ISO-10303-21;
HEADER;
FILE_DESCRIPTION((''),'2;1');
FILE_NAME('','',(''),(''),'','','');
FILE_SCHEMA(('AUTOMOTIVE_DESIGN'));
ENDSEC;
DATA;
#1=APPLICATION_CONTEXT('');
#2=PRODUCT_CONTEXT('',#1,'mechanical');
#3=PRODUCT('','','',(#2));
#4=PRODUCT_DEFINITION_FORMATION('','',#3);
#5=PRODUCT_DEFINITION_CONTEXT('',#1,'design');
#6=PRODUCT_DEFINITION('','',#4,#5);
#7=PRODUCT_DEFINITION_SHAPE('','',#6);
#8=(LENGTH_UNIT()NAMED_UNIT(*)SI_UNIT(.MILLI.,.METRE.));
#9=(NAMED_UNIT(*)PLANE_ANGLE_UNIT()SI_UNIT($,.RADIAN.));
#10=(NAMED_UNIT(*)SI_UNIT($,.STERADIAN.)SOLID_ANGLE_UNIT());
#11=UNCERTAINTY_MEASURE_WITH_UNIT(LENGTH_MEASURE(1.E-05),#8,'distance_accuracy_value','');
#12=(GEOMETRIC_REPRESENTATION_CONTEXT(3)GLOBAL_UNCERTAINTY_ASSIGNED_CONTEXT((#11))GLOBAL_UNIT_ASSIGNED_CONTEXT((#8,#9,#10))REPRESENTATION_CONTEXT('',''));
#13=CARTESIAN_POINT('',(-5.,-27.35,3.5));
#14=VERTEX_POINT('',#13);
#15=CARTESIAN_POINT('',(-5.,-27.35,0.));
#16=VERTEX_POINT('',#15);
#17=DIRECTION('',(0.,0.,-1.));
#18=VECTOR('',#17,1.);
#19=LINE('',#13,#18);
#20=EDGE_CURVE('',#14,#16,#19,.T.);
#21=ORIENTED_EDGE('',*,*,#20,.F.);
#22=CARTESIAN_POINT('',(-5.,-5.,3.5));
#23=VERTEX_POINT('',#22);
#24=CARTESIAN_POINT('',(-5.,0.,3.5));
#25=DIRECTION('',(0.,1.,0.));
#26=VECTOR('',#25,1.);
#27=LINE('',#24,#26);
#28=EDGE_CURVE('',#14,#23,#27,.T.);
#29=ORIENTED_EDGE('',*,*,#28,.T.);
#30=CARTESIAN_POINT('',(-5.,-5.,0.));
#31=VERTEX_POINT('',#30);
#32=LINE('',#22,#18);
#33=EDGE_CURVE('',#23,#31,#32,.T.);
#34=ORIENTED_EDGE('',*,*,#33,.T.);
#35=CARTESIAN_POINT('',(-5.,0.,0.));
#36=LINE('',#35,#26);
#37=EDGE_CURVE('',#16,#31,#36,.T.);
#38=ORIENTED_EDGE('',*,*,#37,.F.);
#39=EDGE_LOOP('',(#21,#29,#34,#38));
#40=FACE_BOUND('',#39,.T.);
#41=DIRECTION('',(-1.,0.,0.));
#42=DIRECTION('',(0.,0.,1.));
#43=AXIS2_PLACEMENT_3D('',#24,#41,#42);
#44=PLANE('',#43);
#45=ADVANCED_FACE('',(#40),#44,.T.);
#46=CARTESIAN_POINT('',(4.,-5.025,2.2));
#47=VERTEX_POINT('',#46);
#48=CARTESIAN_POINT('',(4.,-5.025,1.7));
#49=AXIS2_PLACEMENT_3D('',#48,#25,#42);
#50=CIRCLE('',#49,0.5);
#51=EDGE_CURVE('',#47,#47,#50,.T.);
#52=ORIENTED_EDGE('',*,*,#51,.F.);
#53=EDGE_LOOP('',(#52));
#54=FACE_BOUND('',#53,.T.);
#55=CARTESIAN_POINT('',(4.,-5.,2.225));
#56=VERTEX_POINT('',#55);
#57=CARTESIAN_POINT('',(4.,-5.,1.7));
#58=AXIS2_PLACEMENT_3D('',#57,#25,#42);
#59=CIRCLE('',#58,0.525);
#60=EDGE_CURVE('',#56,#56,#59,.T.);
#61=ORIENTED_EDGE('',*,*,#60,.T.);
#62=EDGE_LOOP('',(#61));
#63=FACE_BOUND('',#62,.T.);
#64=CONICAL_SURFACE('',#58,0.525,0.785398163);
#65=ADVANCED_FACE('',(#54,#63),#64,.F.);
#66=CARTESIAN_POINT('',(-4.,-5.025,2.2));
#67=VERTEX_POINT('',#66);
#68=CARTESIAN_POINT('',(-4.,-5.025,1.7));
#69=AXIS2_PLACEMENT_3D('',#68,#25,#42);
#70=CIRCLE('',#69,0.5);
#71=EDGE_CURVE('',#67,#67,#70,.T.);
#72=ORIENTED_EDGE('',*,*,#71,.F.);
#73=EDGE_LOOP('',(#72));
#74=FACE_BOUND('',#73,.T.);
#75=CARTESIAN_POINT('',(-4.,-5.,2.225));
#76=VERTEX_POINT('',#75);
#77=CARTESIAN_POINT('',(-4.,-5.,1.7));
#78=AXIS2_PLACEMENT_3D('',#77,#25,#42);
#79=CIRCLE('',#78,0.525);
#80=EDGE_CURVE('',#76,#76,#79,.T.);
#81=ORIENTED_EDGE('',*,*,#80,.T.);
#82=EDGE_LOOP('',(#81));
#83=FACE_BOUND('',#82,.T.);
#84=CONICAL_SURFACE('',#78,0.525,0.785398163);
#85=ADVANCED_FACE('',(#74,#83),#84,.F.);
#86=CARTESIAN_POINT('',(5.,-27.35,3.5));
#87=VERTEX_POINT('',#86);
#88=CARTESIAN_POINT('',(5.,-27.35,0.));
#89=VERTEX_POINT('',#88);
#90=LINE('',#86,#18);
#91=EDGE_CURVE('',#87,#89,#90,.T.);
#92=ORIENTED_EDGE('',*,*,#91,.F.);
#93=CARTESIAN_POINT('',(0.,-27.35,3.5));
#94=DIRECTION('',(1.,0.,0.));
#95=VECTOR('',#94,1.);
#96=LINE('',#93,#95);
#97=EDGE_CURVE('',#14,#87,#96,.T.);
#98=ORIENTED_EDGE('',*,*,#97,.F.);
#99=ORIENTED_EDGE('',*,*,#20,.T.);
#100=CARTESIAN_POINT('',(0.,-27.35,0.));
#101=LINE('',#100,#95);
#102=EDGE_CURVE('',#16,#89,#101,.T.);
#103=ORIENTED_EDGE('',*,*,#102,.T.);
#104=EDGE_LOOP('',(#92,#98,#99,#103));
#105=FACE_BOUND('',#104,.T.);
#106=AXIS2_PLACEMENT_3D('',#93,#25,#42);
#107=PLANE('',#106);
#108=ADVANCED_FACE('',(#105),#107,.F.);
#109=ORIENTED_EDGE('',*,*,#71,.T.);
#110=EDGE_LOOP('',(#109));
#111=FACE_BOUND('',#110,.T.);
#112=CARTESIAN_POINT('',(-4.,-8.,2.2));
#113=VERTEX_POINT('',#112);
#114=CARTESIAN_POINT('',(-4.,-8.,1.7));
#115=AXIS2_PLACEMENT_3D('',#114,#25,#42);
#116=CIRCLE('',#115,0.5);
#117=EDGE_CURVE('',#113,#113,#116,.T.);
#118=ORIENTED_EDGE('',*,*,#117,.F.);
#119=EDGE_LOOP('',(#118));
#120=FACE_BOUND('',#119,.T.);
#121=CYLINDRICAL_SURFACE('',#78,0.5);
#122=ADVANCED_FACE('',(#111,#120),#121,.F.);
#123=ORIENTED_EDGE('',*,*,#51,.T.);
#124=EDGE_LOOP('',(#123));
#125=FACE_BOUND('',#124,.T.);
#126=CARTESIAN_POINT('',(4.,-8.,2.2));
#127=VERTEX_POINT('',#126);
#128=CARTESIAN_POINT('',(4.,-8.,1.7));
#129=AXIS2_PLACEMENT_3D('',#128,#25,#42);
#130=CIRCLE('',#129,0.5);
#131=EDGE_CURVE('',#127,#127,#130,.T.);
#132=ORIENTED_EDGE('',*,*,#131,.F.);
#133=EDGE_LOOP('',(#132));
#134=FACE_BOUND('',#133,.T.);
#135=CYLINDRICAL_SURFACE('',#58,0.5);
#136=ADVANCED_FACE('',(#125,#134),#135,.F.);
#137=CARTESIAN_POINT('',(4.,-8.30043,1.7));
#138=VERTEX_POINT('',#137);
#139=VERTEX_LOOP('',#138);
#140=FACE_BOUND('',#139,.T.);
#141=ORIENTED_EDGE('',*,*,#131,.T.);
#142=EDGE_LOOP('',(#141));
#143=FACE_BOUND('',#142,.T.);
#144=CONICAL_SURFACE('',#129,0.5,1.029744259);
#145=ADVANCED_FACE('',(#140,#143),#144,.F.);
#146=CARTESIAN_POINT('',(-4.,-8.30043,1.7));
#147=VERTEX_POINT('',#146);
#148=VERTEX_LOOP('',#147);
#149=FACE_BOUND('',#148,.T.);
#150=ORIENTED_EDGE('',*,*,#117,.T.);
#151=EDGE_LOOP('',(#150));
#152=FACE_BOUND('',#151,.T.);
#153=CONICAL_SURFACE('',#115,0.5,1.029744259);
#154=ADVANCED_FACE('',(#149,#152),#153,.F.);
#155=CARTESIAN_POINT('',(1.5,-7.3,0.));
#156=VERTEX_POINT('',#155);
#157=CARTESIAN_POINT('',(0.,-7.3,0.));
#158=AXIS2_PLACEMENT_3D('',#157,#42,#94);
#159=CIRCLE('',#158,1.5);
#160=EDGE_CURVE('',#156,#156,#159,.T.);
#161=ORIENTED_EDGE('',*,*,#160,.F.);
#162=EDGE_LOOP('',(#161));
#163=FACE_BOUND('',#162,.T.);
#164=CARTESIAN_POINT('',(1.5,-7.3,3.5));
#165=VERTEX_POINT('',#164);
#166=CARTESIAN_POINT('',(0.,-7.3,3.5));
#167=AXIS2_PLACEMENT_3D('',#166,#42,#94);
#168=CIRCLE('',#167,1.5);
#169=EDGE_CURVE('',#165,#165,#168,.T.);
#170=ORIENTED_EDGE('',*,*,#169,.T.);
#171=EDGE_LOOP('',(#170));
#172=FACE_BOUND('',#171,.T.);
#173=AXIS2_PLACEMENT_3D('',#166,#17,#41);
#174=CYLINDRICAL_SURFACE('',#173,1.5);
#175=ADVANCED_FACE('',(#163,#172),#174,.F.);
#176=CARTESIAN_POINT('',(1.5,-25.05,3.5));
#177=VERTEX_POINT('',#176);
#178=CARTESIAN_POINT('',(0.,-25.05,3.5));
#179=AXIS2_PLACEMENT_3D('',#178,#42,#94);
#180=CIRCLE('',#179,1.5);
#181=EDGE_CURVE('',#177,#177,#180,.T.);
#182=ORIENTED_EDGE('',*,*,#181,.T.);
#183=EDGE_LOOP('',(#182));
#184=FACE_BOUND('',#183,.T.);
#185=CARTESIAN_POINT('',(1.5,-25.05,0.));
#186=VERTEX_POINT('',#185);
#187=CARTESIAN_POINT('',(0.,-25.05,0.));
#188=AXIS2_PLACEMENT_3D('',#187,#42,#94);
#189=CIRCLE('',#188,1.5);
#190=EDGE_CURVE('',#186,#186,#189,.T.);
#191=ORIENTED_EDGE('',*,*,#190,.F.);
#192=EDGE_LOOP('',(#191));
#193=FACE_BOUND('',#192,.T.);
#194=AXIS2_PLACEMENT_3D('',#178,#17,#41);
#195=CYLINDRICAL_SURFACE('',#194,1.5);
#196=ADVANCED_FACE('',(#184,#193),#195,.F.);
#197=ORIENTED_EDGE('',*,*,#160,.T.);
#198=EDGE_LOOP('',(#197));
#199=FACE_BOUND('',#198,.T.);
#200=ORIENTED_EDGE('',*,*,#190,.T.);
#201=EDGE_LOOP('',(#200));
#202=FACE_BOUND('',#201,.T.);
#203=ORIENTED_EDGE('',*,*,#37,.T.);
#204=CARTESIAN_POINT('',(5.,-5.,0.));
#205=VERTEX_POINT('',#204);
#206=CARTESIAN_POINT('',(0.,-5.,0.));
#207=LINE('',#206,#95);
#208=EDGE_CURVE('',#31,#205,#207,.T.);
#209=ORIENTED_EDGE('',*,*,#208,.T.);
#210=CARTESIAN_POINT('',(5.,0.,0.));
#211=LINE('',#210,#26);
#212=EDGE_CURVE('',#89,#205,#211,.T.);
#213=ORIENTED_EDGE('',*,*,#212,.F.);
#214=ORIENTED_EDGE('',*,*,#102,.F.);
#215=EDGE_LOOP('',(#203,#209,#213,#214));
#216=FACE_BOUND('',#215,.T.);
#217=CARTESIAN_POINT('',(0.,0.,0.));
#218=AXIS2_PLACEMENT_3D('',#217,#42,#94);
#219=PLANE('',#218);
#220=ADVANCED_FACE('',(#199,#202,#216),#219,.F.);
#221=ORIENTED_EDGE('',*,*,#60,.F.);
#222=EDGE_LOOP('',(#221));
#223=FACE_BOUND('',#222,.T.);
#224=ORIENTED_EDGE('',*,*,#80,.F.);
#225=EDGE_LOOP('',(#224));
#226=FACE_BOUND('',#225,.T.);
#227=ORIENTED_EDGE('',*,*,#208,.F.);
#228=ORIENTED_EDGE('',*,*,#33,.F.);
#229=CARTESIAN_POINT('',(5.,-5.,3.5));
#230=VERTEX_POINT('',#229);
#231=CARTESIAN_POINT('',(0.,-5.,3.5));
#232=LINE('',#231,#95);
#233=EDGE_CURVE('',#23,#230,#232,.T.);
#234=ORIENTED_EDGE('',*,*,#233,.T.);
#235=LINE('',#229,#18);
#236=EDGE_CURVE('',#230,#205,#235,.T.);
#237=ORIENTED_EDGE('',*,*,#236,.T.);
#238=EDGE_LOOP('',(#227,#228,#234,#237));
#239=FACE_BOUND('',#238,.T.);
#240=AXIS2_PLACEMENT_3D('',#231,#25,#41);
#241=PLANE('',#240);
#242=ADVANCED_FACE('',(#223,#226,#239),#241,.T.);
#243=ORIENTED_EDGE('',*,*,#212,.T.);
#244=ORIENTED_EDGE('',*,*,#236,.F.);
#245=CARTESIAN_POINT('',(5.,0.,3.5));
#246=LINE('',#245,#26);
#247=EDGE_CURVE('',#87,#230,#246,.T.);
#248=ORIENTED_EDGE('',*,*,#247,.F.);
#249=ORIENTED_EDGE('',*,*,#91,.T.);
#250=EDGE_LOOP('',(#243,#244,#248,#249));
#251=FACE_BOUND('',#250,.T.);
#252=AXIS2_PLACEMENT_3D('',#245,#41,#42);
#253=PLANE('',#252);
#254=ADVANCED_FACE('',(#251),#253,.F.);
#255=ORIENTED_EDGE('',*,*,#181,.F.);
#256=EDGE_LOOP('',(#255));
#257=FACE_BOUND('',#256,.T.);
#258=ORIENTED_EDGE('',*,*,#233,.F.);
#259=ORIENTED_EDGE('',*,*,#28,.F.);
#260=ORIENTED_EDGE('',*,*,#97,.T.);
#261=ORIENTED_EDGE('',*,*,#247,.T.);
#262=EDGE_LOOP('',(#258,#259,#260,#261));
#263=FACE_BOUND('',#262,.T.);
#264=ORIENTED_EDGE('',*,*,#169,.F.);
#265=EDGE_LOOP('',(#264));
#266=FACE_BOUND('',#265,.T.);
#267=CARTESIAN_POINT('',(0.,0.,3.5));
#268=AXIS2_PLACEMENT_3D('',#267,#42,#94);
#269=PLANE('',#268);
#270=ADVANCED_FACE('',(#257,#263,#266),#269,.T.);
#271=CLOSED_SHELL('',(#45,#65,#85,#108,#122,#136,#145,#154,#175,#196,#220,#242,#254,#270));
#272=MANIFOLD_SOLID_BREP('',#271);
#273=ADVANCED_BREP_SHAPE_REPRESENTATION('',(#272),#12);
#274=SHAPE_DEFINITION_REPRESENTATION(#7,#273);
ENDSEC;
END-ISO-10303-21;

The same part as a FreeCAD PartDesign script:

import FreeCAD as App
import Part
import Sketcher

V = App.Vector

doc = App.newDocument("Part")
body = doc.addObject("PartDesign::Body", "Body")

# Sketch on XY plane
sketch1 = body.newObject("Sketcher::SketchObject", "Sketch")
sketch1.AttachmentSupport = (doc.getObject("XY_Plane"), [""])
sketch1.MapMode = "FlatFace"
sketch1.addGeometry(Part.LineSegment(V(-5, -5, 0), V(-5, -27.4, 0)), False)
sketch1.addGeometry(Part.LineSegment(V(-5, -27.4, 0), V(5, -27.4, 0)), False)
sketch1.addGeometry(Part.LineSegment(V(5, -27.4, 0), V(5, -5, 0)), False)
sketch1.addGeometry(Part.LineSegment(V(5, -5, 0), V(-5, -5, 0)), False)
sketch1.addGeometry(Part.Circle(V(0, -25.1, 0), V(0, 0, 1), 1.5), False)
sketch1.addGeometry(Part.Circle(V(0, -7.3, 0), V(0, 0, 1), 1.5), False)
sketch1.addConstraint(Sketcher.Constraint("Coincident", 0, 2, 1, 1))
sketch1.addConstraint(Sketcher.Constraint("Coincident", 1, 2, 2, 1))
sketch1.addConstraint(Sketcher.Constraint("Coincident", 2, 2, 3, 1))
sketch1.addConstraint(Sketcher.Constraint("Coincident", 3, 2, 0, 1))
sketch1.addConstraint(Sketcher.Constraint("Vertical", 0))
sketch1.addConstraint(Sketcher.Constraint("Horizontal", 1))
sketch1.addConstraint(Sketcher.Constraint("Vertical", 2))
sketch1.addConstraint(Sketcher.Constraint("Horizontal", 3))
sketch1.addConstraint(Sketcher.Constraint("Equal", 4, 5))
sketch1.addConstraint(Sketcher.Constraint("PointOnObject", 4, 3, -2))
sketch1.addConstraint(Sketcher.Constraint("PointOnObject", 5, 3, -2))
sketch1.addConstraint(Sketcher.Constraint("Diameter", 4, 3.0))
sketch1.addConstraint(Sketcher.Constraint("DistanceX", 1, 1, 1, 2, 10.0))
sketch1.addConstraint(Sketcher.Constraint("DistanceX", 0, 2, -1, 1, 5.0))
sketch1.addConstraint(Sketcher.Constraint("DistanceY", 2, 2, -1, 1, 5.0))
sketch1.addConstraint(Sketcher.Constraint("DistanceY", 0, 2, 0, 1, 22.35))
sketch1.addConstraint(Sketcher.Constraint("DistanceY", 5, 3, -1, 1, 7.3))
sketch1.addConstraint(Sketcher.Constraint("DistanceY", 0, 2, 4, 3, 2.3))
pad1 = body.newObject("PartDesign::Pad", "Pad")
pad1.Profile = sketch1
pad1.Length = 3.5

# Sketch on XZ plane
sketch2 = body.newObject("Sketcher::SketchObject", "Sketch001")
sketch2.AttachmentSupport = (doc.getObject("XZ_Plane"), [""])
sketch2.MapMode = "FlatFace"
sketch2.AttachmentOffset = App.Placement(V(0, 0, 5), App.Rotation())
sketch2.addGeometry(Part.Circle(V(-4, 1.7, 0), V(0, 0, 1), 0.5), False)
sketch2.addGeometry(Part.Circle(V(4, 1.7, 0), V(0, 0, 1), 0.5), False)
sketch2.addConstraint(Sketcher.Constraint("Equal", 0, 1))
sketch2.addConstraint(Sketcher.Constraint("Symmetric", 0, 3, 1, 3, -2))
sketch2.addConstraint(Sketcher.Constraint("Diameter", 0, 1.0))
sketch2.addConstraint(Sketcher.Constraint("DistanceX", 0, 3, -1, 1, 4.0))
sketch2.addConstraint(Sketcher.Constraint("DistanceY", -1, 1, 0, 3, 1.7))
doc.recompute()
hole = body.newObject("PartDesign::Hole", "Hole")
hole.Profile = sketch2
hole.ThreadType = "None"
hole.Diameter = 1
hole.DepthType = "Dimension"
hole.Depth = 3
hole.DrillPoint = "Angled"
hole.DrillPointAngle = 118
hole.HoleCutType = "Countersink"
hole.HoleCutDiameter = 1.05
hole.HoleCutCountersinkAngle = 90
hole.Reversed = True

doc.recompute()
